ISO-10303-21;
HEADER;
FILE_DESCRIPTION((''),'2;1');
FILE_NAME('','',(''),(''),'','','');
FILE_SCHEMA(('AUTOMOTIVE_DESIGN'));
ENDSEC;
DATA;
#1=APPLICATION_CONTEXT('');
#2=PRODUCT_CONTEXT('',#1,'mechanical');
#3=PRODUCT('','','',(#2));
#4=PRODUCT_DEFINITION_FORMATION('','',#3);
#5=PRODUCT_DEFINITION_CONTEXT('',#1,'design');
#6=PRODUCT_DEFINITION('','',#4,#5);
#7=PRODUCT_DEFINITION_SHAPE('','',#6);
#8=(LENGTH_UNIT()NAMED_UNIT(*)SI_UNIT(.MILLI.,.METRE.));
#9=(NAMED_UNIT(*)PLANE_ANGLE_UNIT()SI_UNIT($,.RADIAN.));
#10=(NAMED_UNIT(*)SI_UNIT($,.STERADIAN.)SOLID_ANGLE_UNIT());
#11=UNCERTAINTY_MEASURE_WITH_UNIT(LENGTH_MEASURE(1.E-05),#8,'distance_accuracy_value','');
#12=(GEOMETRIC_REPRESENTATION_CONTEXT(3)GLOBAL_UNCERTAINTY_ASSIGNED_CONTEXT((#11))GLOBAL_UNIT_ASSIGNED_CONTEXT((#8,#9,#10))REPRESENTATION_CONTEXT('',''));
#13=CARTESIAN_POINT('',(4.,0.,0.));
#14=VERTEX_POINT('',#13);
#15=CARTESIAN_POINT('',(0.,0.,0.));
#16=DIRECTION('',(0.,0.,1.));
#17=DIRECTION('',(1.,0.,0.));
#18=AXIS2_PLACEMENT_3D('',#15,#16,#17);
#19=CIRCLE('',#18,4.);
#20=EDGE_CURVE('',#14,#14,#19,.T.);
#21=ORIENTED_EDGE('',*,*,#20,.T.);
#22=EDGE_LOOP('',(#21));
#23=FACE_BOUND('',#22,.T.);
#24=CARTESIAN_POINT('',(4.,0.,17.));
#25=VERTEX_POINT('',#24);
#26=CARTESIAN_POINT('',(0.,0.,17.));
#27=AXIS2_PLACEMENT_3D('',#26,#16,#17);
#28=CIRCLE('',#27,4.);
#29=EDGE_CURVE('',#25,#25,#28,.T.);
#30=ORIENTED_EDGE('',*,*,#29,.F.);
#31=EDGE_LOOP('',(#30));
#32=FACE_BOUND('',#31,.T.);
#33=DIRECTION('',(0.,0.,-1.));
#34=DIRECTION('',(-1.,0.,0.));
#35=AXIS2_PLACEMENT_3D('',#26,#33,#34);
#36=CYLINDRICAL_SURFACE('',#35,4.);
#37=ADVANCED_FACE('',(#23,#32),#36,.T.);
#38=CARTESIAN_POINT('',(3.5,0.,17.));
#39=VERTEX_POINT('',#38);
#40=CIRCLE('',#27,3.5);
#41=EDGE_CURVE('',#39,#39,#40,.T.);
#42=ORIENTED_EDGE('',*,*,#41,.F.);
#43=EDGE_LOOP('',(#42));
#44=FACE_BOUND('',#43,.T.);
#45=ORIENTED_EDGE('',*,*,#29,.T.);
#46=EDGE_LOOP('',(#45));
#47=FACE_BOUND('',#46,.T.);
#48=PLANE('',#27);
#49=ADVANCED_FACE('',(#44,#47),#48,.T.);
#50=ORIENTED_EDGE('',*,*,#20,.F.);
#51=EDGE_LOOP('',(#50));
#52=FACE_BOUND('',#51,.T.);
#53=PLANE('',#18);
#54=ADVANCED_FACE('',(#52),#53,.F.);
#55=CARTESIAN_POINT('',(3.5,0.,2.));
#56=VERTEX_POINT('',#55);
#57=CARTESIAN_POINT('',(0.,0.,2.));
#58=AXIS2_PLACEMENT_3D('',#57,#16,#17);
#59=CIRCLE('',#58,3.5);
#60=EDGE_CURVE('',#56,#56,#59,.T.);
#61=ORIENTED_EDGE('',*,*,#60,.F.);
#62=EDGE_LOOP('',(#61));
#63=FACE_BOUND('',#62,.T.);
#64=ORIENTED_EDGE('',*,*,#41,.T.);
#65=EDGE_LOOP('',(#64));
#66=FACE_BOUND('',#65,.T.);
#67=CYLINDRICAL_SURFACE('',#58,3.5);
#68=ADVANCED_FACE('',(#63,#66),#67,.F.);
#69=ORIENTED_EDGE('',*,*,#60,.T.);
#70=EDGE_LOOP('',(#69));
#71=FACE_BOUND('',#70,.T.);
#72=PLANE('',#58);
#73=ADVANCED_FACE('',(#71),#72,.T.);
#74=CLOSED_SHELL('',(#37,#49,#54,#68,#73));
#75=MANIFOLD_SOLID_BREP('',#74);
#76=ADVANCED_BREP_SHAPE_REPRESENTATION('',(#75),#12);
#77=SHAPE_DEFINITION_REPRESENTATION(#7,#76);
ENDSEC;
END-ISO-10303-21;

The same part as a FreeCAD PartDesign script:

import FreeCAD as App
import Part
import Sketcher

V = App.Vector
Q = App.Units.Quantity

doc = App.newDocument("Part")
body = doc.addObject("PartDesign::Body", "Body")

# Sketch on XY plane
sketch1 = doc.addObject("Sketcher::SketchObject", "Sketch")
body.addObject(sketch1)
sketch1.AttachmentSupport = (doc.XY_Plane, [""])
sketch1.MapMode = "FlatFace"
sketch1.addGeometry(Part.Circle(V(0, 0, 0), V(0, 0, 1), 4), False)
sketch1.addConstraint(Sketcher.Constraint("Coincident", 0, 3, -1, 1))
sketch1.addConstraint(Sketcher.Constraint("Diameter", 0, Q("8 mm")))
pad1 = doc.addObject("PartDesign::Pad", "Pad")
body.addObject(pad1)
pad1.Profile = sketch1
pad1.Length = 17

# Sketch on XY plane
sketch2 = doc.addObject("Sketcher::SketchObject", "Sketch001")
body.addObject(sketch2)
sketch2.AttachmentSupport = (doc.XY_Plane, [""])
sketch2.MapMode = "FlatFace"
sketch2.AttachmentOffset = App.Placement(V(0, 0, 17), App.Rotation())
sketch2.addGeometry(Part.Circle(V(0, 0, 0), V(0, 0, 1), 3.5), False)
sketch2.addConstraint(Sketcher.Constraint("Coincident", 0, 3, -1, 1))
sketch2.addConstraint(Sketcher.Constraint("Diameter", 0, Q("7 mm")))
pocket1 = doc.addObject("PartDesign::Pocket", "Pocket")
body.addObject(pocket1)
pocket1.Profile = sketch2
pocket1.Length = 15

doc.recompute()
